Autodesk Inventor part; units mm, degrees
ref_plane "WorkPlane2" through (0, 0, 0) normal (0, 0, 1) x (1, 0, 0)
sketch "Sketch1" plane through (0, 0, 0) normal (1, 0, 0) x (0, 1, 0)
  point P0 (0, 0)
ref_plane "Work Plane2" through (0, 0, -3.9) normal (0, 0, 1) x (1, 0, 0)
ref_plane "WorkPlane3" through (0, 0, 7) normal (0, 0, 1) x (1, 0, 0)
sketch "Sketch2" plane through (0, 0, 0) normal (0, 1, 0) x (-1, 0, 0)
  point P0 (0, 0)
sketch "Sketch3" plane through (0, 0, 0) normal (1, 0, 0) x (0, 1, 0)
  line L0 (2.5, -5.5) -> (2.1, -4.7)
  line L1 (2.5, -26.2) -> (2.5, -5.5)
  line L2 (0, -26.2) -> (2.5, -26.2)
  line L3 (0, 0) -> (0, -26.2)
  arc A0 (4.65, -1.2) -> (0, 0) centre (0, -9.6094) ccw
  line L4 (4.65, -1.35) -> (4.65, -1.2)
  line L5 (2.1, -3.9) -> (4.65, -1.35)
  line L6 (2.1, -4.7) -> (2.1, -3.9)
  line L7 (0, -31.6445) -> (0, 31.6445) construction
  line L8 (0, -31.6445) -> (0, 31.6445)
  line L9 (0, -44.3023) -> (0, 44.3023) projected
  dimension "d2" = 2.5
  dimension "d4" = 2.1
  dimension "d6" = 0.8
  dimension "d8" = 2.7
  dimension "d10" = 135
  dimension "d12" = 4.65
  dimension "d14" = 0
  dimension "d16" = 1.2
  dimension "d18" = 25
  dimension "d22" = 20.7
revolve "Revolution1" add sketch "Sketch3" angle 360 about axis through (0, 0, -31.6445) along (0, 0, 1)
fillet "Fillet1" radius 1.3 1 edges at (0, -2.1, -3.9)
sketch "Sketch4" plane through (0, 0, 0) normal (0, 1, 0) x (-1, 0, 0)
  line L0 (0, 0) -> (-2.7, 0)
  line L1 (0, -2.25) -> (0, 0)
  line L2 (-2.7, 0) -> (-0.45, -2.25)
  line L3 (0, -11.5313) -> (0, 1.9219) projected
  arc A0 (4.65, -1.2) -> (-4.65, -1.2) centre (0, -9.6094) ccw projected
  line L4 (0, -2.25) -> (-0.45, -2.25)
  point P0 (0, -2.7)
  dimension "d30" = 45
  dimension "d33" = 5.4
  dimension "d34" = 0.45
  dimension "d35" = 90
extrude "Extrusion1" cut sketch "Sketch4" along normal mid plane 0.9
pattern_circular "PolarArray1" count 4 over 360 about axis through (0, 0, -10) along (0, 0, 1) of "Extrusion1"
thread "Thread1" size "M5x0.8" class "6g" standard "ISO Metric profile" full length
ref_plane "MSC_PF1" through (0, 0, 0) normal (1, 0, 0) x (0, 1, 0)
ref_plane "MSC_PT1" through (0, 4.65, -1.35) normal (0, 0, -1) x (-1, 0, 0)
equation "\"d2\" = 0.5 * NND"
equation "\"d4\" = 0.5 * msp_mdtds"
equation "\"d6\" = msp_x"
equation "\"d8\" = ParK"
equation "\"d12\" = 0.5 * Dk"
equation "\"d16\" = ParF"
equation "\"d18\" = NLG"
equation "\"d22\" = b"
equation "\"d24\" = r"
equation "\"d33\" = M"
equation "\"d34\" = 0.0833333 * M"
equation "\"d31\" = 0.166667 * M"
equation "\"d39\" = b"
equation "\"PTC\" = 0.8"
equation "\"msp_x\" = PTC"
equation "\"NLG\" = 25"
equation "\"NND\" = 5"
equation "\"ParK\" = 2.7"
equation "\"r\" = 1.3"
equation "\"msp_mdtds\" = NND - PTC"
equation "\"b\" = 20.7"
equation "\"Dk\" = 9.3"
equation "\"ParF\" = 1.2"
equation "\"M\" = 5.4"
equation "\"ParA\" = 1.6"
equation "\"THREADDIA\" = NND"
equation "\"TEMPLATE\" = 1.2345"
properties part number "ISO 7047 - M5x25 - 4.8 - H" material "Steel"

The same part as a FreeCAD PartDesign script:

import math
import FreeCAD as App
import Part
import Sketcher
Q = App.Units.Quantity


def edges_at(feature, points):
    """Names of the edges that pass closest to the given points."""
    edges = feature.Shape.Edges
    near = lambda p: min(range(len(edges)), key=lambda i: edges[i].distToShape(Part.Vertex(*p))[0])
    return sorted({f"Edge{near(p) + 1}" for p in points})


def add_polygon(sketch, points):
    """Adds a closed chain of lines whose ends are joined by coincident constraints."""
    first, n = sketch.GeometryCount, len(points)
    for a, b in zip(points, points[1:] + points[:1]):
        sketch.addGeometry(Part.LineSegment(App.Vector(*a, 0), App.Vector(*b, 0)), False)
    for i in range(n):
        sketch.addConstraint(Sketcher.Constraint("Coincident", first + i, 2, first + (i + 1) % n, 1))

doc = App.newDocument("Part")
body = doc.addObject("PartDesign::Body", "Body")

sketch1 = body.newObject("Sketcher::SketchObject", "Sketch")
sketch1.AttachmentSupport = (doc.getObject("YZ_Plane"), [""])
sketch1.MapMode = "FlatFace"
sketch1.addGeometry([
    Part.LineSegment(App.Vector(2.5, -26.2, 0), App.Vector(2.5, -5.5, 0)),
    Part.LineSegment(App.Vector(2.5, -5.5, 0), App.Vector(2.1, -4.7, 0)),
    Part.LineSegment(App.Vector(2.1, -4.7, 0), App.Vector(2.1, -3.9, 0)),
    Part.LineSegment(App.Vector(2.1, -3.9, 0), App.Vector(4.65, -1.35, 0)),
    Part.LineSegment(App.Vector(4.65, -1.35, 0), App.Vector(4.65, -1.2, 0)),
    Part.ArcOfCircle(Part.Circle(App.Vector(0, -9.61, 0), App.Vector(0, 0, 1), 9.61), math.radians(61), math.radians(90)),
    Part.LineSegment(App.Vector(0, 0, 0), App.Vector(0, -26.2, 0)),
    Part.LineSegment(App.Vector(0, -26.2, 0), App.Vector(2.5, -26.2, 0)),
], False)
sketch1.addConstraint([
    Sketcher.Constraint("Coincident", 0, 2, 1, 1),
    Sketcher.Constraint("Coincident", 1, 2, 2, 1),
    Sketcher.Constraint("Coincident", 2, 2, 3, 1),
    Sketcher.Constraint("Coincident", 3, 2, 4, 1),
    Sketcher.Constraint("Coincident", 4, 2, 5, 1),
    Sketcher.Constraint("Coincident", 5, 2, 6, 1),
    Sketcher.Constraint("Coincident", 6, 2, 7, 1),
    Sketcher.Constraint("Coincident", 7, 2, 0, 1),
    Sketcher.Constraint("Vertical", 0),
    Sketcher.Constraint("Vertical", 2),
    Sketcher.Constraint("Vertical", 4),
    Sketcher.Constraint("Vertical", 6),
    Sketcher.Constraint("Horizontal", 7),
    Sketcher.Constraint("Coincident", 5, 2, -1, 1),
    Sketcher.Constraint("PointOnObject", 5, 3, -2),
    Sketcher.Constraint("DistanceX", 7, 1, 7, 2, Q("2.5 mm")),
    Sketcher.Constraint("DistanceY", 0, 1, 0, 2, Q("20.7 mm")),
    Sketcher.Constraint("DistanceY", 2, 1, 2, 2, Q("0.8 mm")),
    Sketcher.Constraint("DistanceX", -1, 1, 1, 2, Q("2.1 mm")),
    Sketcher.Constraint("DistanceY", 4, 2, -1, 1, Q("1.2 mm")),
    Sketcher.Constraint("DistanceY", 0, 2, 1, 2, Q("0.8 mm")),
    Sketcher.Constraint("DistanceY", 2, 2, 4, 2, Q("2.7 mm")),
    Sketcher.Constraint("DistanceX", -1, 1, 3, 2, Q("4.65 mm")),
    Sketcher.Constraint("Angle", 3, Q("45 deg")),
])
revolution = body.newObject("PartDesign::Revolution", "Revolution")
revolution.Profile = sketch1
revolution.ReferenceAxis = (sketch1, ["V_Axis"])
revolution.Angle = 360
doc.recompute()

fillet = body.newObject("PartDesign::Fillet", "Fillet")
fillet.Base = (revolution, edges_at(revolution, [(0, -2.1, -3.9)]))
fillet.Radius = 1.3

sketch2 = body.newObject("Sketcher::SketchObject", "Sketch001")
sketch2.AttachmentSupport = (doc.getObject("XZ_Plane"), [""])
sketch2.MapMode = "FlatFace"
add_polygon(sketch2, [(2.7, 0), (0.45, -2.25), (0, -2.25), (0, 0)])
sketch2.addConstraint([
    Sketcher.Constraint("Horizontal", 1),
    Sketcher.Constraint("Vertical", 2),
    Sketcher.Constraint("Horizontal", 3),
    Sketcher.Constraint("Coincident", 2, 2, -1, 1),
    Sketcher.Constraint("DistanceX", 1, 2, 1, 1, Q("0.45 mm")),
    Sketcher.Constraint("Angle", 0, Q("-135 deg")),
    Sketcher.Constraint("DistanceX", 3, 1, 3, 2, Q("2.7 mm")),
])
pocket1 = body.newObject("PartDesign::Pocket", "Pocket")
pocket1.Profile = sketch2
pocket1.Length = 0.9
pocket1.Midplane = True
doc.recompute()

polarpattern = body.newObject("PartDesign::PolarPattern", "PolarPattern")
polarpattern.Originals = [pocket1]
polarpattern.Axis = (doc.getObject("Z_Axis"), [""])
polarpattern.Angle = 360
polarpattern.Occurrences = 4
body.Tip = polarpattern

doc.recompute()
